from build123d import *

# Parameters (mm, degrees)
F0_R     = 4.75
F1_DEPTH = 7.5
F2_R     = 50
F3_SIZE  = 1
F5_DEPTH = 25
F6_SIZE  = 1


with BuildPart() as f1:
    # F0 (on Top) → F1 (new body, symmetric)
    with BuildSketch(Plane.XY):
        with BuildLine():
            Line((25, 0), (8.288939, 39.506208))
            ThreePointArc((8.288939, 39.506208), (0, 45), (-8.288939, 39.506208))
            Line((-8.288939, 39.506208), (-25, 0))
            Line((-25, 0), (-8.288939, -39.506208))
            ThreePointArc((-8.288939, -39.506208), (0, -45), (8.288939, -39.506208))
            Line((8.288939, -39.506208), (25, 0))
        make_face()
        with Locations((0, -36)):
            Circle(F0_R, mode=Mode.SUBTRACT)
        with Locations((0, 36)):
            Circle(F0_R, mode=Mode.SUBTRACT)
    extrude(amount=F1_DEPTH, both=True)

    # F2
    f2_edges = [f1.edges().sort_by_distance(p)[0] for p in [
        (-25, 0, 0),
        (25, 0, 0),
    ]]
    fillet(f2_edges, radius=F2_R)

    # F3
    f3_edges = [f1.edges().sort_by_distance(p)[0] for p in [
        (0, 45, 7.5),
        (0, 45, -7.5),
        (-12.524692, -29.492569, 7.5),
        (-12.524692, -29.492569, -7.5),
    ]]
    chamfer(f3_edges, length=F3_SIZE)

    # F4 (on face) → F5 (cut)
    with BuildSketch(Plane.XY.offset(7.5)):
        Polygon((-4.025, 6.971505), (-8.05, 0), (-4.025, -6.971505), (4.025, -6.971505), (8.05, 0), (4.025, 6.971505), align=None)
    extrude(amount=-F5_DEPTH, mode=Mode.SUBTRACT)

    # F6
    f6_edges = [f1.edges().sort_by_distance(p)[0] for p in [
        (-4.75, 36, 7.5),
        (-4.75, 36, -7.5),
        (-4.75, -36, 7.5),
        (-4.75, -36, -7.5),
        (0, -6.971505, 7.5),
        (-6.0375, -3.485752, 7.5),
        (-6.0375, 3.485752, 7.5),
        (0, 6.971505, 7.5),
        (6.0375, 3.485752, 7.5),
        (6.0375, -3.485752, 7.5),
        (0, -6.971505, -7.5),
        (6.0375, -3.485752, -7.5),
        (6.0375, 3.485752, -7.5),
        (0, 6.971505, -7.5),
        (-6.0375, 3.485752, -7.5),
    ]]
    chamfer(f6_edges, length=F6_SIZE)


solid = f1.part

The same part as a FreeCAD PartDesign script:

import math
import FreeCAD as App
import Part
import Sketcher

V = App.Vector
Q = App.Units.Quantity


def edges_at(feature, points):
    """Names of the edges that pass closest to the given points."""
    edges = feature.Shape.Edges
    near = lambda p: min(range(len(edges)), key=lambda i: edges[i].distToShape(Part.Vertex(*p))[0])
    return sorted({f"Edge{near(p) + 1}" for p in points})


def add_polygon(sketch, points):
    """Adds a closed chain of lines whose ends are joined by coincident constraints."""
    first, n = sketch.GeometryCount, len(points)
    for a, b in zip(points, points[1:] + points[:1]):
        sketch.addGeometry(Part.LineSegment(App.Vector(*a, 0), App.Vector(*b, 0)), False)
    for i in range(n):
        sketch.addConstraint(Sketcher.Constraint("Coincident", first + i, 2, first + (i + 1) % n, 1))

doc = App.newDocument("Part")
body = doc.addObject("PartDesign::Body", "Body")

sketch1 = doc.addObject("Sketcher::SketchObject", "Sketch")
body.addObject(sketch1)
sketch1.AttachmentSupport = (doc.XY_Plane, [""])
sketch1.MapMode = "FlatFace"
sketch1.addGeometry([
    Part.LineSegment(V(25, 0, 0), V(8.288939, 39.506208, 0)),
    Part.ArcOfCircle(Part.Circle(V(0, 36, 0), V(0, 0, 1), 9), math.radians(22.928287), math.radians(157.071713)),
    Part.LineSegment(V(-8.288939, 39.506208, 0), V(-25, 0, 0)),
    Part.LineSegment(V(-25, 0, 0), V(-8.288939, -39.506208, 0)),
    Part.ArcOfCircle(Part.Circle(V(0, -36, 0), V(0, 0, 1), 9), math.radians(-157.071713), math.radians(-22.928287)),
    Part.LineSegment(V(8.288939, -39.506208, 0), V(25, 0, 0)),
    Part.Circle(V(0, -36, 0), V(0, 0, 1), 4.75),
    Part.Circle(V(0, 36, 0), V(0, 0, 1), 4.75),
], False)
sketch1.addConstraint([
    Sketcher.Constraint("Tangent", 0, 2, 1, 1),
    Sketcher.Constraint("Tangent", 1, 2, 2, 1),
    Sketcher.Constraint("Coincident", 2, 2, 3, 1),
    Sketcher.Constraint("Tangent", 3, 2, 4, 1),
    Sketcher.Constraint("Tangent", 4, 2, 5, 1),
    Sketcher.Constraint("Coincident", 5, 2, 0, 1),
    Sketcher.Constraint("Coincident", 6, 3, 4, 3),
    Sketcher.Constraint("Coincident", 7, 3, 1, 3),
    Sketcher.Constraint("Equal", 1, 4),
    Sketcher.Constraint("Equal", 6, 7),
    Sketcher.Constraint("Symmetric", 1, 3, 4, 3, -1, 1),
    Sketcher.Constraint("Symmetric", 2, 2, 5, 2, -1, 1),
    Sketcher.Constraint("Symmetric", 0, 2, 1, 2, -2),
    Sketcher.Constraint("Radius", 1, Q("9 mm")),
    Sketcher.Constraint("Diameter", 6, Q("9.5 mm")),
    Sketcher.Constraint("DistanceY", -1, 1, 1, 3, Q("36 mm")),
    Sketcher.Constraint("DistanceX", 2, 2, -1, 1, Q("25 mm")),
])
pad1 = doc.addObject("PartDesign::Pad", "Pad")
body.addObject(pad1)
pad1.Profile = sketch1
pad1.Length = 15
pad1.Midplane = True
doc.recompute()

fillet = doc.addObject("PartDesign::Fillet", "Fillet")
body.addObject(fillet)
fillet.Base = (pad1, edges_at(pad1, [(-25, 0, 0), (25, 0, 0)]))
fillet.Radius = 50
doc.recompute()

chamfer = doc.addObject("PartDesign::Chamfer", "Chamfer")
body.addObject(chamfer)
chamfer.Base = (fillet, edges_at(fillet, [
    (0, 45, 7.5),
    (0, 45, -7.5),
    (-12.525, -29.493, 7.5),
    (-12.525, -29.493, -7.5),
]))
chamfer.Size = 1

sketch2 = doc.addObject("Sketcher::SketchObject", "Sketch001")
body.addObject(sketch2)
sketch2.AttachmentSupport = (doc.XY_Plane, [""])
sketch2.MapMode = "FlatFace"
sketch2.AttachmentOffset = App.Placement(V(0, 0, 7.5), App.Rotation())
add_polygon(sketch2, [(-4.025, 6.971505), (-8.05, 0), (-4.025, -6.971505), (4.025, -6.971505), (8.05, 0), (4.025, 6.971505)])
sketch2.addConstraint([
    Sketcher.Constraint("Horizontal", 2),
    Sketcher.Constraint("Horizontal", 5),
    Sketcher.Constraint("Symmetric", 0, 2, 3, 2, -1, 1),
    Sketcher.Constraint("Symmetric", 1, 2, 4, 2, -1, 1),
    Sketcher.Constraint("PointOnObject", 0, 2, -1),
    Sketcher.Constraint("Parallel", 0, 3),
    Sketcher.Constraint("Vertical", 2, 2, 4, 2),
    Sketcher.Constraint("Angle", 0, Q("-119.999998 deg")),
    Sketcher.Constraint("DistanceX", 2, 1, 2, 2, Q("8.05 mm")),
    Sketcher.Constraint("DistanceX", 0, 2, 3, 2, Q("16.1 mm")),
])
pocket1 = doc.addObject("PartDesign::Pocket", "Pocket")
body.addObject(pocket1)
pocket1.Profile = sketch2
pocket1.Length = 25
doc.recompute()

chamfer2 = doc.addObject("PartDesign::Chamfer", "Chamfer001")
body.addObject(chamfer2)
chamfer2.Base = (pocket1, edges_at(pocket1, [
    (-4.75, 36, 7.5),
    (-4.75, 36, -7.5),
    (-4.75, -36, 7.5),
    (-4.75, -36, -7.5),
    (0, -6.972, 7.5),
    (-6.037, -3.486, 7.5),
    (-6.037, 3.486, 7.5),
    (0, 6.972, 7.5),
    (6.037, 3.486, 7.5),
    (6.037, -3.486, 7.5),
    (0, -6.972, -7.5),
    (6.037, -3.486, -7.5),
    (6.037, 3.486, -7.5),
    (0, 6.972, -7.5),
    (-6.037, 3.486, -7.5),
]))
chamfer2.Size = 1

doc.recompute()
